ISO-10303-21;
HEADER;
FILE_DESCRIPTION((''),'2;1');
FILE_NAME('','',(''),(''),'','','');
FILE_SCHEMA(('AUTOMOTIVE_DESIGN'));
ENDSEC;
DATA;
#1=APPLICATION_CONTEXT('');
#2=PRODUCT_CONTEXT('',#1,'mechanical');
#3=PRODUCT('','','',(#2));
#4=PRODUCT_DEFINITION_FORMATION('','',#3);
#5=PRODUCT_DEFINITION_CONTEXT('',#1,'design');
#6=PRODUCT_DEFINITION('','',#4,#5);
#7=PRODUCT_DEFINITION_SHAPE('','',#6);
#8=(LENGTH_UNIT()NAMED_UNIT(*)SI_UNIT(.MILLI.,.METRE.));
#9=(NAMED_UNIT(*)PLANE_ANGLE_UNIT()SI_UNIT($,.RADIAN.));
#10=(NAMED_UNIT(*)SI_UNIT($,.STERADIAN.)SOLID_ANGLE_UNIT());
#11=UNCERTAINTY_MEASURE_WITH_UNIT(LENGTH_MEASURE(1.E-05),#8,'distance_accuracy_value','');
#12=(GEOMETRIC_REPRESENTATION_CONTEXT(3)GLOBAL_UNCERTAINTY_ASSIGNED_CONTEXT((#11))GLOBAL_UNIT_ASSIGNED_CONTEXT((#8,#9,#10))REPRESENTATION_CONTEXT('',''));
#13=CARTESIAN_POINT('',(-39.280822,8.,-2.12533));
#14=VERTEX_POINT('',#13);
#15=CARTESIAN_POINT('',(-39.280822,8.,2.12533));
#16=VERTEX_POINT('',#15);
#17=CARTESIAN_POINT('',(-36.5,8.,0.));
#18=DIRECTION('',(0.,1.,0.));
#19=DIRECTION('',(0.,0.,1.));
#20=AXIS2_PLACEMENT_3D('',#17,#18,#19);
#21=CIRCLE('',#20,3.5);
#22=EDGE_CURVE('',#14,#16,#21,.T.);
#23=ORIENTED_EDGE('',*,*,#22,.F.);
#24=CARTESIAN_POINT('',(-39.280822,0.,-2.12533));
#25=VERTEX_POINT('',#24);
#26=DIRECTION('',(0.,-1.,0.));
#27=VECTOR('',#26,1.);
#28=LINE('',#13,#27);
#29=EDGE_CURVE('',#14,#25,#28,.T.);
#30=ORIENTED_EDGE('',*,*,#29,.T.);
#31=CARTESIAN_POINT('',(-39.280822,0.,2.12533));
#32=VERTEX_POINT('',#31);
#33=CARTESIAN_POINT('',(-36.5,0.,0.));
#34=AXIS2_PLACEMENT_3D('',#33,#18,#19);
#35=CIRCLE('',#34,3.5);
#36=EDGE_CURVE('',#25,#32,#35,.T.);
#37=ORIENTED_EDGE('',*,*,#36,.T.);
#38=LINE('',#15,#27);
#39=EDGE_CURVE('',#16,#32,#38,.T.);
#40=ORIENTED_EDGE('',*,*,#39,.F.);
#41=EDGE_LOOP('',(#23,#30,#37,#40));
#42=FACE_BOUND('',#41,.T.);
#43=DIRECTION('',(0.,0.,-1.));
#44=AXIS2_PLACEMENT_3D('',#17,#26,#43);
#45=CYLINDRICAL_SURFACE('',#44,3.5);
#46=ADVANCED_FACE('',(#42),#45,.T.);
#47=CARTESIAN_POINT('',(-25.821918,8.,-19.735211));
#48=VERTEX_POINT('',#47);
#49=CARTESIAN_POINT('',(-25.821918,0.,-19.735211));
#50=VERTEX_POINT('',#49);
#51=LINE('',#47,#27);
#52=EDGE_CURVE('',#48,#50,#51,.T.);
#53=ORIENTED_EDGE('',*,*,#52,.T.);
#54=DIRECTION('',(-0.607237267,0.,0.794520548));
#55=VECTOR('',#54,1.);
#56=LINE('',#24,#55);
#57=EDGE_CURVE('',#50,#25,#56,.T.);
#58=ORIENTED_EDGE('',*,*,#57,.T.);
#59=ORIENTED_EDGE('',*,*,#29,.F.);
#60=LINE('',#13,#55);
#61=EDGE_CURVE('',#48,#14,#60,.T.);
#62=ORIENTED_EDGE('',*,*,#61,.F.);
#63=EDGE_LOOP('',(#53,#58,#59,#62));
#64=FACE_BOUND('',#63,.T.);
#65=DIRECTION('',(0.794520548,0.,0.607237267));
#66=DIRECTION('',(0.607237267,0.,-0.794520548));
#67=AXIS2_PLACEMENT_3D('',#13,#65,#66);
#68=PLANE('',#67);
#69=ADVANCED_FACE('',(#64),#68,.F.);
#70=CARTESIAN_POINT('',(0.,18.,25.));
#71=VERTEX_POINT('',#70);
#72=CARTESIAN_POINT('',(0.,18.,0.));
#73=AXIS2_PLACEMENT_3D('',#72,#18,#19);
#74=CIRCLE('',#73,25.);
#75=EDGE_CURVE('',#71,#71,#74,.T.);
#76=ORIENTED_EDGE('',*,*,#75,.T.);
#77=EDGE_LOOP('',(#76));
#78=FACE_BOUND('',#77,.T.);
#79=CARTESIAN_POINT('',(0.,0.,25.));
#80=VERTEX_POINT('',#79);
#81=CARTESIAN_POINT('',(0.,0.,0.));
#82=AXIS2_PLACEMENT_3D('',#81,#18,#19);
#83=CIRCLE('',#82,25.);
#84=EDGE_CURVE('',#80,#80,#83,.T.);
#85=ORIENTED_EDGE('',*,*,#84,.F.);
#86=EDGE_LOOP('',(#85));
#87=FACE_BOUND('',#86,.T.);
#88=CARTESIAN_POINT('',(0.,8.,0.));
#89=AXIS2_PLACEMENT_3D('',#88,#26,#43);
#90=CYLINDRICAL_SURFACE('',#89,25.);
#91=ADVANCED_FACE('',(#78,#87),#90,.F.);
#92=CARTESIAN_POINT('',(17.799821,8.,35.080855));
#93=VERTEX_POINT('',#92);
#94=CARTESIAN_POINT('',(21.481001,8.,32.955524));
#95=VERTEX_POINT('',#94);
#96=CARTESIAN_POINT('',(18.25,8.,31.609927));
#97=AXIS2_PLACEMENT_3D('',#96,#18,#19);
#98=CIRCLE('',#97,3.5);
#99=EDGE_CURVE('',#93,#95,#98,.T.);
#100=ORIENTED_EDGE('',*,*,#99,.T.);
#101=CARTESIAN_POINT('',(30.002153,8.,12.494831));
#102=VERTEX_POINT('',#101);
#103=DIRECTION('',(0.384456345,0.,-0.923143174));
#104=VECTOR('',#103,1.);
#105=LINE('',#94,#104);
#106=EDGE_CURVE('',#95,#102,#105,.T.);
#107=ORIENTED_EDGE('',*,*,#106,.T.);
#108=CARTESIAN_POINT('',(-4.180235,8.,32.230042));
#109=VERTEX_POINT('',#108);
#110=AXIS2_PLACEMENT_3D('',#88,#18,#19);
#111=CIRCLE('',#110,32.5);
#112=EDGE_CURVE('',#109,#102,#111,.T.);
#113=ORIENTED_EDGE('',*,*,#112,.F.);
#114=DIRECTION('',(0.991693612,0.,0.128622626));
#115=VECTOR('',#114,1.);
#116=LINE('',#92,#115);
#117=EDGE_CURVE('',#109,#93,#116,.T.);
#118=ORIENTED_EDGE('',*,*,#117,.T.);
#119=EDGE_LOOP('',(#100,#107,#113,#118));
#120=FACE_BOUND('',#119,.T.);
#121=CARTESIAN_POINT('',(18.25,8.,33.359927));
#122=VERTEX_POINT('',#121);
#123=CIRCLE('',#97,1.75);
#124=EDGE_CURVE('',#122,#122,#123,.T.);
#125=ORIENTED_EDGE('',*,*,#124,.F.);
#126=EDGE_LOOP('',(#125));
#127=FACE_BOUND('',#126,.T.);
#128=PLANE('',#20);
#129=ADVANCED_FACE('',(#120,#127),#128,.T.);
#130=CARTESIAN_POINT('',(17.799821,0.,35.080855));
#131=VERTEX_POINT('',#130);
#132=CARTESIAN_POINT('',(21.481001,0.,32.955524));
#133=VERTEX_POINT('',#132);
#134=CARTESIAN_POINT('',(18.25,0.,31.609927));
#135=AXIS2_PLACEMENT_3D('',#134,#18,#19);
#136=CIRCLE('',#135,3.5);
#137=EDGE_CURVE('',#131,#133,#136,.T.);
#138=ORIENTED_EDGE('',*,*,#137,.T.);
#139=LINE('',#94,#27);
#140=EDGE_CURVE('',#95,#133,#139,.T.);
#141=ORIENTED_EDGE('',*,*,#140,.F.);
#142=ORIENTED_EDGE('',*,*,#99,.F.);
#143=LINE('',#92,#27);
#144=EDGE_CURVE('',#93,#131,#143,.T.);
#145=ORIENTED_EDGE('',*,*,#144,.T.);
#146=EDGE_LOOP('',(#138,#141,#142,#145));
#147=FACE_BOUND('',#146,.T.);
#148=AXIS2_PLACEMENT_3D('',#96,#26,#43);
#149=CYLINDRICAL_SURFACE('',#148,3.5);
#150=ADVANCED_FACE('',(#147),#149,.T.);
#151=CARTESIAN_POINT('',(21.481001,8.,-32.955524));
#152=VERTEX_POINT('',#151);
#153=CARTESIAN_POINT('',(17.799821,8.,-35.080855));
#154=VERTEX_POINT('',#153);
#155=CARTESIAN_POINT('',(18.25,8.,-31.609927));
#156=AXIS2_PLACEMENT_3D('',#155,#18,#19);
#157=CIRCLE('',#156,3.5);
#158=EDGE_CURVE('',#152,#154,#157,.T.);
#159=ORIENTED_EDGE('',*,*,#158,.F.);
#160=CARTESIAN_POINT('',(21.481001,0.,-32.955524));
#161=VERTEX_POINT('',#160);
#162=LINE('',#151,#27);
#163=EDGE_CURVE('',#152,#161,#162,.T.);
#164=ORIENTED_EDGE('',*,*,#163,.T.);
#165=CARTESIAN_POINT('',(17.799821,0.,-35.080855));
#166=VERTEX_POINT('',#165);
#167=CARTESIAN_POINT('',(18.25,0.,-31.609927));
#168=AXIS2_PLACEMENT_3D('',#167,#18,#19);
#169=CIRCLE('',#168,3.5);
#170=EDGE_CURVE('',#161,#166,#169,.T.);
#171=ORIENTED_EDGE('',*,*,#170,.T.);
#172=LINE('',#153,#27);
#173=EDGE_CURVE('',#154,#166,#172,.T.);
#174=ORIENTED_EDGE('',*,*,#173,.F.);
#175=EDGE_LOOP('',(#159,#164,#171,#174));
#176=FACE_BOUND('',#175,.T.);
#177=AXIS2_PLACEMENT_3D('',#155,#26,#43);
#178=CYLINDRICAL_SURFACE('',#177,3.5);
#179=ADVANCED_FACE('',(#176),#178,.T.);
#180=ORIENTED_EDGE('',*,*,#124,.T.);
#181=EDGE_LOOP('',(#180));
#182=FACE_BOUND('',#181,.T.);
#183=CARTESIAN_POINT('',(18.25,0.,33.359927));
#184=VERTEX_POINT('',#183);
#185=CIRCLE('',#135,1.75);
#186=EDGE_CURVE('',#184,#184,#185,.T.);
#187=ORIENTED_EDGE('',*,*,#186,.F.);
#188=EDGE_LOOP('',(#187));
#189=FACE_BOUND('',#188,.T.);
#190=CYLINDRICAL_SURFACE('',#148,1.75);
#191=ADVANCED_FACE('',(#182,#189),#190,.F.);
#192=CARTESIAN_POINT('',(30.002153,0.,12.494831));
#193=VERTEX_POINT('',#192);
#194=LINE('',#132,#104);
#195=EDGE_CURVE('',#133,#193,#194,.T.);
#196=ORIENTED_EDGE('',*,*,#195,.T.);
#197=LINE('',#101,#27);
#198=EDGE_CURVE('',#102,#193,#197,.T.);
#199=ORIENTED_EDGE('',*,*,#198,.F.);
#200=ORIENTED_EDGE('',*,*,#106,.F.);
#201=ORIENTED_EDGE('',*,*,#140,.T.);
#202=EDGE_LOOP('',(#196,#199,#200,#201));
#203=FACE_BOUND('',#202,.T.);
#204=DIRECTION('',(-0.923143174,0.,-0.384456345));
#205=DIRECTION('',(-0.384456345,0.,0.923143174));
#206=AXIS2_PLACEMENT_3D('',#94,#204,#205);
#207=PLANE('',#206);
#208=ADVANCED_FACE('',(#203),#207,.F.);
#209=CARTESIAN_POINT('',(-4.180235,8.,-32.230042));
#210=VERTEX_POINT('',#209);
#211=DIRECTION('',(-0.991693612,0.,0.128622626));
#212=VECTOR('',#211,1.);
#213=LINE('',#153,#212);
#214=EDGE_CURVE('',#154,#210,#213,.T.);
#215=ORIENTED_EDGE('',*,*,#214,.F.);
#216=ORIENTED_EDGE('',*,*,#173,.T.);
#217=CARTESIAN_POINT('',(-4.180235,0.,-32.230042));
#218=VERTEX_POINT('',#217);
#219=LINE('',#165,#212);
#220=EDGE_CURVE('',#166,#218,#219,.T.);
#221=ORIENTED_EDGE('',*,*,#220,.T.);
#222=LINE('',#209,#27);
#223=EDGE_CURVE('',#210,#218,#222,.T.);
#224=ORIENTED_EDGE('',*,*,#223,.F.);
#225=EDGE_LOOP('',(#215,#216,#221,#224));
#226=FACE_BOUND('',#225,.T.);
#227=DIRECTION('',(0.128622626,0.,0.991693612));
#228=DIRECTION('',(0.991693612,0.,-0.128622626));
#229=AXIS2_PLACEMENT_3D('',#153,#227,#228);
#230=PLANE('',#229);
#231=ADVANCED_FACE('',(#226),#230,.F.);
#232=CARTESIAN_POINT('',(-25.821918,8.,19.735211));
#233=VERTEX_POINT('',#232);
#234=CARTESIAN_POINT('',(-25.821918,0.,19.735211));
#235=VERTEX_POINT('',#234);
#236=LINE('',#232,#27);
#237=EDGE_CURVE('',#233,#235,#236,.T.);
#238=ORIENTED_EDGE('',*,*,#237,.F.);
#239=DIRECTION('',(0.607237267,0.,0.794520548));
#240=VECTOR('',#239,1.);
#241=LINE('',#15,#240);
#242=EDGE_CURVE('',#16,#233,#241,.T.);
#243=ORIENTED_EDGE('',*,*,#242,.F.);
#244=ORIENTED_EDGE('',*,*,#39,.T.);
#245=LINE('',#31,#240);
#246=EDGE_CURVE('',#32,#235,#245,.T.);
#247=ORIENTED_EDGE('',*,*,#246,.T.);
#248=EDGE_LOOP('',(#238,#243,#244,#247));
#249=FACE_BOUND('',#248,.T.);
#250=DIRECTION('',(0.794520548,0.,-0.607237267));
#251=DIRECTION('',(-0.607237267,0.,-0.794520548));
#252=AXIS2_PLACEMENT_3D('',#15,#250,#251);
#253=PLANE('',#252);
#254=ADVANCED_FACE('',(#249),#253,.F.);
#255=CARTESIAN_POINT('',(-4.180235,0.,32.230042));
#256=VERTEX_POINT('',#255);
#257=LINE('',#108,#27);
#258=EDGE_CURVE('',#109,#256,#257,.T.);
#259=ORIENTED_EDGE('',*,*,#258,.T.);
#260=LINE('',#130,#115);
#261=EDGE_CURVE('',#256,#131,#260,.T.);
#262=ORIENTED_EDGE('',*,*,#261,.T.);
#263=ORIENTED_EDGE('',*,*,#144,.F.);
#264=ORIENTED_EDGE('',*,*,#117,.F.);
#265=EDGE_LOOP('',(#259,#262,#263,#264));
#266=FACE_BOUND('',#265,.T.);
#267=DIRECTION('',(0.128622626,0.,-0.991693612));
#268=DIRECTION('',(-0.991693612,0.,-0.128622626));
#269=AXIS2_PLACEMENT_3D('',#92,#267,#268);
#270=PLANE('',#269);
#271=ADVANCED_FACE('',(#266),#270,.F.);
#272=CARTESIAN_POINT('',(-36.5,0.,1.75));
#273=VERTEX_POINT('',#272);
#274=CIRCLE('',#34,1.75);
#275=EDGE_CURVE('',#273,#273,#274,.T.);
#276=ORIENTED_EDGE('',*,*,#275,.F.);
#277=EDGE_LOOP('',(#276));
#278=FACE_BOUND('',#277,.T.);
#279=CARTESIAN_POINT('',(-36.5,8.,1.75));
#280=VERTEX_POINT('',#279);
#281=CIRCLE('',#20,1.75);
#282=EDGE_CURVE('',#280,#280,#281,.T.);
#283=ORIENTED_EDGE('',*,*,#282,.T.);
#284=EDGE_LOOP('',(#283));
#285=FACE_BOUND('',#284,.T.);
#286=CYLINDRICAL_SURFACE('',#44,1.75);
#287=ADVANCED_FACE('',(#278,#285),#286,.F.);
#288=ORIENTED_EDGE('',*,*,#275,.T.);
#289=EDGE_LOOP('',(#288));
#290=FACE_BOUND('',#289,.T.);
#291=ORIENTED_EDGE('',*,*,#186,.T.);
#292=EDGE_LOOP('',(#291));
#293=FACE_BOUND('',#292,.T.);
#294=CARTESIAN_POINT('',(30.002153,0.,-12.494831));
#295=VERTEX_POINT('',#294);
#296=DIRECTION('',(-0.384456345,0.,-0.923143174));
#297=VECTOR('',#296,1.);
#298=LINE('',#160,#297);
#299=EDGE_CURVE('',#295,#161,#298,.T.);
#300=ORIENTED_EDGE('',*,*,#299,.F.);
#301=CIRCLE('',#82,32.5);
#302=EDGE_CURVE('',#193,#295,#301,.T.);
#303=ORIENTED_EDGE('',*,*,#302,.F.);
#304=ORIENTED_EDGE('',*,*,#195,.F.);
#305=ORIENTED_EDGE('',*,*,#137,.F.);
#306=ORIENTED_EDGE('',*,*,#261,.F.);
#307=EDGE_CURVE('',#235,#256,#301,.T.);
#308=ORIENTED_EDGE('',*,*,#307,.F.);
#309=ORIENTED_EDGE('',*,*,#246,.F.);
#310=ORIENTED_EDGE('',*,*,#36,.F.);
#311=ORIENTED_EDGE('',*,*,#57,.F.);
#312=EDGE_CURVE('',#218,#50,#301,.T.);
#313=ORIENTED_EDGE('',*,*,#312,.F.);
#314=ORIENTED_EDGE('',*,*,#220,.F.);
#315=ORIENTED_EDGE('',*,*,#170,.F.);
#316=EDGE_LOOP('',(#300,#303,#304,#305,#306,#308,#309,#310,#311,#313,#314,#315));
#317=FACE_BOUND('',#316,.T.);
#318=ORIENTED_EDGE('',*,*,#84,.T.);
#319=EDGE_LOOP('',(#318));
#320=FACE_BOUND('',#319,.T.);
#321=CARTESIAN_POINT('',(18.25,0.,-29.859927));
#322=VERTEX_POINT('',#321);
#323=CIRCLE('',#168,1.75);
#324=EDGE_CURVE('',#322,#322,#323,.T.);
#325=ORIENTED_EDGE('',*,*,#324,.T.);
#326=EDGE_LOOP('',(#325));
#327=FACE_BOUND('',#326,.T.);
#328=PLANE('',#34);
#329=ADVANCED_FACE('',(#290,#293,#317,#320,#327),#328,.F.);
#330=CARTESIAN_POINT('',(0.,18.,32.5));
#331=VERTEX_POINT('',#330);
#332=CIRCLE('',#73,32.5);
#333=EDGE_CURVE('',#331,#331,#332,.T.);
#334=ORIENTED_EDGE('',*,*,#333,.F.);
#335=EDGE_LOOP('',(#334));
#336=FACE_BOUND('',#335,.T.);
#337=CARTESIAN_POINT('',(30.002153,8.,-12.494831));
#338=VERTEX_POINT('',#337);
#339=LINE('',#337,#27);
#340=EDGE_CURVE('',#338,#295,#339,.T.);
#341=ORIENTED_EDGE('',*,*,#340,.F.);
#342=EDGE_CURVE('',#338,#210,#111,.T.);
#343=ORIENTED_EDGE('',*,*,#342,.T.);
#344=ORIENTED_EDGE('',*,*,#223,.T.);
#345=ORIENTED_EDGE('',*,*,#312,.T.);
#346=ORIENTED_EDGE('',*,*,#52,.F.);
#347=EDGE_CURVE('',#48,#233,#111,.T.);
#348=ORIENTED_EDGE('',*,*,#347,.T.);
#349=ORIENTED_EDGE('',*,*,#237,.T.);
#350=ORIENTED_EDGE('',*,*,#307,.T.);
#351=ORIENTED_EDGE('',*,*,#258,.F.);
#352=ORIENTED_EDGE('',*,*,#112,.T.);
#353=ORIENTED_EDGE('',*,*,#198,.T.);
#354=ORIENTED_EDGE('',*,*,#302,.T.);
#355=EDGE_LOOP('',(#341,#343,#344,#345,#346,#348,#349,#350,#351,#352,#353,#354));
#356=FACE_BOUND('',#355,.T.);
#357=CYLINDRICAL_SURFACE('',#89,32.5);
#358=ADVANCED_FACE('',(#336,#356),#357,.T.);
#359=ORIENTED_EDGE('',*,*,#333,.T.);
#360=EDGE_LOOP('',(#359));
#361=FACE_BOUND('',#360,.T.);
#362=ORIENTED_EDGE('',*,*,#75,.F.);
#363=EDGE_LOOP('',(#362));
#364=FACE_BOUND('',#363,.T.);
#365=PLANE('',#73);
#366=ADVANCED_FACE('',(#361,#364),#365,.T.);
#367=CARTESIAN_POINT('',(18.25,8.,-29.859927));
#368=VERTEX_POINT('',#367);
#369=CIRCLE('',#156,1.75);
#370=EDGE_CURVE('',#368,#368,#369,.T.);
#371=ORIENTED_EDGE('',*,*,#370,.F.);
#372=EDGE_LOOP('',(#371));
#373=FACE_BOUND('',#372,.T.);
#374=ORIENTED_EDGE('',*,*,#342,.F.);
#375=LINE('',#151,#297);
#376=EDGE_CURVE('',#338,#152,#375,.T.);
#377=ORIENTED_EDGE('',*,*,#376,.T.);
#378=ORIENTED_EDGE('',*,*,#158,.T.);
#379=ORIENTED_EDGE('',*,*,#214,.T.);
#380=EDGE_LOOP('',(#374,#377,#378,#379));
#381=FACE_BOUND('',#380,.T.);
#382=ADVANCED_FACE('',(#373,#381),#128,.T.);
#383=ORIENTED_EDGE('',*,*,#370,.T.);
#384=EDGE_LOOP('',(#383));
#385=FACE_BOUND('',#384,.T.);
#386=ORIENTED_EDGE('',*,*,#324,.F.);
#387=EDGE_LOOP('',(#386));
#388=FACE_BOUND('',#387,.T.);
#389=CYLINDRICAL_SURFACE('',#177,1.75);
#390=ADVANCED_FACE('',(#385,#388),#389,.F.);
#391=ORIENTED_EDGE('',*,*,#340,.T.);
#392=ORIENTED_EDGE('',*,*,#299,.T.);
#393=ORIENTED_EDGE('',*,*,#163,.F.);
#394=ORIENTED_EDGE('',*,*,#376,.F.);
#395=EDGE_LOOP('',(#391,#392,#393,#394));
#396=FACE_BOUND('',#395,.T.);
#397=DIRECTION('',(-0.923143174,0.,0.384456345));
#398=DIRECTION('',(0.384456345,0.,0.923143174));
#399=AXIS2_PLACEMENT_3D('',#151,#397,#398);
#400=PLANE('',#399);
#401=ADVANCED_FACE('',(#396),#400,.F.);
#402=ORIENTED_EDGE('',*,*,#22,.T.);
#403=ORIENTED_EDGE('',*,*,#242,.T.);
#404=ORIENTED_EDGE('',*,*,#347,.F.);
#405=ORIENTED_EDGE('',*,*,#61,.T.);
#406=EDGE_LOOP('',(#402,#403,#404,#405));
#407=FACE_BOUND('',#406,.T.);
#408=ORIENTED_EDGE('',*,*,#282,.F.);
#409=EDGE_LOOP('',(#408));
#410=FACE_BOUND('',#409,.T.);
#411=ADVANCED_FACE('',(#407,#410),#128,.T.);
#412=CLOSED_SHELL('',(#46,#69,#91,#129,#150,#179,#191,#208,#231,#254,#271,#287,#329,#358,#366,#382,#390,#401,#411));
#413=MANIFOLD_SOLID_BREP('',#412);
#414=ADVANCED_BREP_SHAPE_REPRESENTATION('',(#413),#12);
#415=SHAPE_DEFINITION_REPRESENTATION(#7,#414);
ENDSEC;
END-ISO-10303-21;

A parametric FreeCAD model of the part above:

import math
import FreeCAD as App
import Part
import Sketcher

V = App.Vector
Q = App.Units.Quantity

doc = App.newDocument("Part")
params = doc.addObject("Spreadsheet::Sheet", "Params")
for row, (alias, value) in enumerate([
    ("sketch1_diameter", "50 mm"),
    ("sketch1_diameter2", "3.5 mm"),
    ("sketch1_radius", "3.5 mm"),
    ("sketch1_radius2", "32.5 mm"),
    ("pad1_length", "8 mm"),
    ("sketch2_diameter", "65 mm"),
    ("sketch2_diameter2", "50 mm"),
    ("pad2_length", "10 mm"),
], start=1):
    params.set(f"A{row}", alias)
    params.set(f"B{row}", "=" + value)
    params.setAlias(f"B{row}", alias)

body = doc.addObject("PartDesign::Body", "Body")

# Sketch on XZ plane
sketch1 = body.newObject("Sketcher::SketchObject", "Sketch")
sketch1.AttachmentSupport = (doc.getObject("XZ_Plane"), [""])
sketch1.MapMode = "FlatFace"
sketch1.addGeometry([
    Part.LineSegment(V(-25.8, -19.7, 0), V(-39.3, -2.1, 0)),  # 0
    Part.ArcOfCircle(Part.Circle(V(-36.5, 0, 0), V(0, 0, 1), 3.5), math.radians(143), math.radians(217)),  # 1
    Part.LineSegment(V(-39.3, 2.1, 0), V(-25.8, 19.7, 0)),  # 2
    Part.ArcOfCircle(Part.Circle(V(0, 0, 0), V(0, 0, 1), 32.5), math.radians(97), math.radians(143)),  # 3
    Part.LineSegment(V(-4.2, 32.2, 0), V(17.8, 35.1, 0)),  # 4
    Part.ArcOfCircle(Part.Circle(V(18.2, 31.6, 0), V(0, 0, 1), 3.5), math.radians(23), math.radians(97)),  # 5
    Part.LineSegment(V(21.5, 33, 0), V(30, 12.5, 0)),  # 6
    Part.ArcOfCircle(Part.Circle(V(0, 0, 0), V(0, 0, 1), 32.5), math.radians(-23), math.radians(23)),  # 7
    Part.LineSegment(V(30, -12.5, 0), V(21.5, -33, 0)),  # 8
    Part.ArcOfCircle(Part.Circle(V(18.2, -31.6, 0), V(0, 0, 1), 3.5), math.radians(-97), math.radians(-23)),  # 9
    Part.LineSegment(V(17.8, -35.1, 0), V(-4.2, -32.2, 0)),  # 10
    Part.ArcOfCircle(Part.Circle(V(0, 0, 0), V(0, 0, 1), 32.5), math.radians(-143), math.radians(-97)),  # 11
    Part.Circle(V(18.2, 31.6, 0), V(0, 0, 1), 1.8),  # 12
    Part.Circle(V(0, 0, 0), V(0, 0, 1), 25),  # 13
    Part.Circle(V(18.2, -31.6, 0), V(0, 0, 1), 1.8),  # 14
    Part.Circle(V(-36.5, 0, 0), V(0, 0, 1), 1.8),  # 15
], False)
sketch1.addConstraint([
    Sketcher.Constraint("Tangent", 0, 2, 1, 2),
    Sketcher.Constraint("Tangent", 1, 1, 2, 1),
    Sketcher.Constraint("Tangent", 2, 2, 3, 2),
    Sketcher.Constraint("Tangent", 3, 1, 4, 1),
    Sketcher.Constraint("Tangent", 4, 2, 5, 2),
    Sketcher.Constraint("Tangent", 5, 1, 6, 1),
    Sketcher.Constraint("Tangent", 6, 2, 7, 2),
    Sketcher.Constraint("Tangent", 7, 1, 8, 1),
    Sketcher.Constraint("Tangent", 8, 2, 9, 2),
    Sketcher.Constraint("Tangent", 9, 1, 10, 1),
    Sketcher.Constraint("Tangent", 10, 2, 11, 2),
    Sketcher.Constraint("Tangent", 11, 1, 0, 1),
    Sketcher.Constraint("Coincident", 3, 3, -1, 1),
    Sketcher.Constraint("Coincident", 7, 3, -1, 1),
    Sketcher.Constraint("Coincident", 11, 3, -1, 1),
    Sketcher.Constraint("Coincident", 13, 3, -1, 1),
    Sketcher.Constraint("Coincident", 12, 3, 5, 3),
    Sketcher.Constraint("Coincident", 14, 3, 9, 3),
    Sketcher.Constraint("Coincident", 15, 3, 1, 3),
    Sketcher.Constraint("Equal", 1, 5),
    Sketcher.Constraint("Equal", 3, 7),
    Sketcher.Constraint("Equal", 5, 9),
    Sketcher.Constraint("Equal", 7, 11),
    Sketcher.Constraint("Equal", 12, 14),
    Sketcher.Constraint("Equal", 14, 15),
    Sketcher.Constraint("Symmetric", 5, 3, 9, 3, -1),
    Sketcher.Constraint("PointOnObject", 1, 3, -1),
    Sketcher.Constraint("Equal", 2, 4),
    Sketcher.Constraint("Diameter", 13, Q("50 mm")),
    Sketcher.Constraint("Diameter", 12, Q("3.5 mm")),
    Sketcher.Constraint("Radius", 1, Q("3.5 mm")),
    Sketcher.Constraint("Radius", 3, Q("32.5 mm")),
    Sketcher.Constraint("DistanceX", 1, 3, -1, 1, Q("36.5 mm")),
    Sketcher.Constraint("Angle", 4, Q("7.390006 deg")),
])
sketch1.setExpression("Constraints[28]", "Params.sketch1_diameter")
sketch1.setExpression("Constraints[29]", "Params.sketch1_diameter2")
sketch1.setExpression("Constraints[30]", "Params.sketch1_radius")
sketch1.setExpression("Constraints[31]", "Params.sketch1_radius2")
pad1 = body.newObject("PartDesign::Pad", "Pad")
pad1.Profile = sketch1
pad1.setExpression("Length", "Params.pad1_length")
pad1.Reversed = True

# Sketch on XZ plane
sketch2 = body.newObject("Sketcher::SketchObject", "Sketch001")
sketch2.AttachmentSupport = (doc.getObject("XZ_Plane"), [""])
sketch2.MapMode = "FlatFace"
sketch2.AttachmentOffset = App.Placement(V(0, 0, -8), App.Rotation())
sketch2.addGeometry([
    Part.Circle(V(0, 0, 0), V(0, 0, 1), 32),
    Part.Circle(V(0, 0, 0), V(0, 0, 1), 25),
], False)
sketch2.addConstraint([
    Sketcher.Constraint("Coincident", 0, 3, -1, 1),
    Sketcher.Constraint("Coincident", 1, 3, -1, 1),
    Sketcher.Constraint("Diameter", 0, Q("65 mm")),
    Sketcher.Constraint("Diameter", 1, Q("50 mm")),
])
sketch2.setExpression("Constraints[2]", "Params.sketch2_diameter")
sketch2.setExpression("Constraints[3]", "Params.sketch2_diameter2")
pad2 = body.newObject("PartDesign::Pad", "Pad001")
pad2.Profile = sketch2
pad2.setExpression("Length", "Params.pad2_length")
pad2.Reversed = True

doc.recompute()
